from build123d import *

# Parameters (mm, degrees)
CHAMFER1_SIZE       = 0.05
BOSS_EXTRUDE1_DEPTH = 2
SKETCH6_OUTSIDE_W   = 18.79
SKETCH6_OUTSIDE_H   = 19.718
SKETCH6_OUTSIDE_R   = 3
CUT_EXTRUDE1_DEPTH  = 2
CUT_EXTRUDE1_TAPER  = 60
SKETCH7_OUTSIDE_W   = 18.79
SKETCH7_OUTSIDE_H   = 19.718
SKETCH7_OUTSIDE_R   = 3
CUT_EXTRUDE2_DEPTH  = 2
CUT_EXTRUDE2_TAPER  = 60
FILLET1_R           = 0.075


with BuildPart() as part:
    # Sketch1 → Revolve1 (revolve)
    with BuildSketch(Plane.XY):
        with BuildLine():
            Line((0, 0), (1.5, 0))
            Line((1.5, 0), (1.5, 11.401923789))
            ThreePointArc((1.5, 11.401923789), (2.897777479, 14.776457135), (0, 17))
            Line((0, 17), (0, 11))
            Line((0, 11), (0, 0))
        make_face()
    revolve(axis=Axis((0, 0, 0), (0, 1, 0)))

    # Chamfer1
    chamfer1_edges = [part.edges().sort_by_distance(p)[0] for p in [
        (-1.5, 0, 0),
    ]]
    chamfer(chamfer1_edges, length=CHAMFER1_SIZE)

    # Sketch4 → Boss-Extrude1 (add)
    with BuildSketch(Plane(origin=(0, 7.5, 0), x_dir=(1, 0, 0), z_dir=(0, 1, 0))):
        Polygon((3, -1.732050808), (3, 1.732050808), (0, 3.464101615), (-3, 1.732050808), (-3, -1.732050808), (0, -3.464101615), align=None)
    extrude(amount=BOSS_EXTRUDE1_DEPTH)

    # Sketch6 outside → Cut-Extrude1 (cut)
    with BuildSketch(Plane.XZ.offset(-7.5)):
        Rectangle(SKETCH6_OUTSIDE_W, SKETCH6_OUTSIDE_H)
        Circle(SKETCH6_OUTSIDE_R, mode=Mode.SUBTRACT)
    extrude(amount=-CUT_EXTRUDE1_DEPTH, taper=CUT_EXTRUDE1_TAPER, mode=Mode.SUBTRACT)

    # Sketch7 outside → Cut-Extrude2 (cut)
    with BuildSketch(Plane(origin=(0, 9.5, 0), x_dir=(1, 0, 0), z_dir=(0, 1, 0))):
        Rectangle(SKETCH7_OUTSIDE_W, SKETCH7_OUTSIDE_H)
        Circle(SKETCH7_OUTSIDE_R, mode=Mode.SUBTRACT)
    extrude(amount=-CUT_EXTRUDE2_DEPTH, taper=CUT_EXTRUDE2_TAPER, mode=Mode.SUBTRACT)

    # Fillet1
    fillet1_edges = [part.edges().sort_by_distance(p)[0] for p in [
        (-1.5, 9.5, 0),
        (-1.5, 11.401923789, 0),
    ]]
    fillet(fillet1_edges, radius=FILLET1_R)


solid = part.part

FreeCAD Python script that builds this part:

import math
import FreeCAD as App
import Part
import Sketcher
Q = App.Units.Quantity


def edges_at(feature, points):
    """Names of the edges that pass closest to the given points."""
    edges = feature.Shape.Edges
    near = lambda p: min(range(len(edges)), key=lambda i: edges[i].distToShape(Part.Vertex(*p))[0])
    return sorted({f"Edge{near(p) + 1}" for p in points})

doc = App.newDocument("Part")
params = doc.addObject("Spreadsheet::Sheet", "Params")
for row, (alias, value) in enumerate([
    ("sketch1_radius", "3 mm"),
    ("sketch1_height", "17 mm"),
    ("sketch1_width", "1.5 mm"),
    ("revolution_angle", "360 deg"),
    ("chamfer_size", "0.05 mm"),
    ("pad1_length", "2 mm"),
    ("sketch3_diameter", "6 mm"),
    ("sketch3_width", "18.79 mm"),
    ("pocket1_length", "2 mm"),
    ("pocket1_taper", "60 deg"),
    ("sketch4_diameter", "6 mm"),
    ("sketch4_width", "18.79 mm"),
    ("pocket2_length", "2 mm"),
    ("pocket2_taper", "60 deg"),
    ("fillet_radius", "0.075 mm"),
], start=1):
    params.set(f"A{row}", alias)
    params.set(f"B{row}", "=" + value)
    params.setAlias(f"B{row}", alias)

body = doc.addObject("PartDesign::Body", "Body")

# Sketch on XY plane
sketch1 = body.newObject("Sketcher::SketchObject", "Sketch")
sketch1.AttachmentSupport = (doc.getObject("XY_Plane"), [""])
sketch1.MapMode = "FlatFace"
sketch1.addGeometry(Part.LineSegment(App.Vector(0, 0, 0), App.Vector(1.5, 0, 0)), False)
sketch1.addGeometry(Part.LineSegment(App.Vector(1.5, 0, 0), App.Vector(1.5, 11.401924, 0)), False)
sketch1.addGeometry(Part.ArcOfCircle(Part.Circle(App.Vector(0, 14, 0), App.Vector(0, 0, 1), 3), math.radians(-60), math.radians(90)), False)
sketch1.addGeometry(Part.LineSegment(App.Vector(0, 17, 0), App.Vector(0, 0, 0)), False)
sketch1.addConstraint(Sketcher.Constraint("Coincident", 0, 2, 1, 1))
sketch1.addConstraint(Sketcher.Constraint("Coincident", 1, 2, 2, 1))
sketch1.addConstraint(Sketcher.Constraint("Coincident", 2, 2, 3, 1))
sketch1.addConstraint(Sketcher.Constraint("Coincident", 3, 2, 0, 1))
sketch1.addConstraint(Sketcher.Constraint("Horizontal", 0))
sketch1.addConstraint(Sketcher.Constraint("Vertical", 1))
sketch1.addConstraint(Sketcher.Constraint("Vertical", 3))
sketch1.addConstraint(Sketcher.Constraint("Coincident", 3, 2, -1, 1))
sketch1.addConstraint(Sketcher.Constraint("PointOnObject", 2, 3, -2))
sketch1.addConstraint(Sketcher.Constraint("Radius", 2, Q("3 mm")))
sketch1.addConstraint(Sketcher.Constraint("DistanceY", 3, 2, 3, 1, Q("17 mm")))
sketch1.addConstraint(Sketcher.Constraint("DistanceX", 0, 1, 0, 2, Q("1.5 mm")))
sketch1.setExpression("Constraints[9]", "Params.sketch1_radius")
sketch1.setExpression("Constraints[10]", "Params.sketch1_height")
sketch1.setExpression("Constraints[11]", "Params.sketch1_width")
revolution = body.newObject("PartDesign::Revolution", "Revolution")
revolution.Profile = sketch1
revolution.ReferenceAxis = (sketch1, ["V_Axis"])
revolution.setExpression("Angle", "Params.revolution_angle")
doc.recompute()

chamfer = body.newObject("PartDesign::Chamfer", "Chamfer")
chamfer.Base = (revolution, edges_at(revolution, [(-1.5, 0, 0)]))
chamfer.setExpression("Size", "Params.chamfer_size")

# Sketch on XZ plane
sketch2 = body.newObject("Sketcher::SketchObject", "Sketch001")
sketch2.AttachmentSupport = (doc.getObject("XZ_Plane"), [""])
sketch2.MapMode = "FlatFace"
sketch2.AttachmentOffset = App.Placement(App.Vector(0, 0, -7.5), App.Rotation())
sketch2.addGeometry(Part.LineSegment(App.Vector(3, 1.732051, 0), App.Vector(3, -1.732051, 0)), False)
sketch2.addGeometry(Part.LineSegment(App.Vector(3, -1.732051, 0), App.Vector(0, -3.464102, 0)), False)
sketch2.addGeometry(Part.LineSegment(App.Vector(0, -3.464102, 0), App.Vector(-3, -1.732051, 0)), False)
sketch2.addGeometry(Part.LineSegment(App.Vector(-3, -1.732051, 0), App.Vector(-3, 1.732051, 0)), False)
sketch2.addGeometry(Part.LineSegment(App.Vector(-3, 1.732051, 0), App.Vector(0, 3.464102, 0)), False)
sketch2.addGeometry(Part.LineSegment(App.Vector(0, 3.464102, 0), App.Vector(3, 1.732051, 0)), False)
sketch2.addConstraint(Sketcher.Constraint("Coincident", 0, 2, 1, 1))
sketch2.addConstraint(Sketcher.Constraint("Coincident", 1, 2, 2, 1))
sketch2.addConstraint(Sketcher.Constraint("Coincident", 2, 2, 3, 1))
sketch2.addConstraint(Sketcher.Constraint("Coincident", 3, 2, 4, 1))
sketch2.addConstraint(Sketcher.Constraint("Coincident", 4, 2, 5, 1))
sketch2.addConstraint(Sketcher.Constraint("Coincident", 5, 2, 0, 1))
sketch2.addConstraint(Sketcher.Constraint("Vertical", 0))
sketch2.addConstraint(Sketcher.Constraint("Vertical", 3))
sketch2.addConstraint(Sketcher.Constraint("Symmetric", 0, 2, 3, 2, -1, 1))
sketch2.addConstraint(Sketcher.Constraint("Symmetric", 1, 2, 4, 2, -1, 1))
sketch2.addConstraint(Sketcher.Constraint("PointOnObject", 1, 2, -2))
sketch2.addConstraint(Sketcher.Constraint("Parallel", 2, 5))
sketch2.addConstraint(Sketcher.Constraint("Horizontal", 0, 2, 2, 2))
sketch2.addConstraint(Sketcher.Constraint("Angle", 1, Q("-150 deg")))
sketch2.addConstraint(Sketcher.Constraint("DistanceX", -1, 1, 0, 2, Q("3 mm")))
sketch2.addConstraint(Sketcher.Constraint("DistanceY", 0, 2, 0, 1, Q("3.464102 mm")))
pad1 = body.newObject("PartDesign::Pad", "Pad")
pad1.Profile = sketch2
pad1.setExpression("Length", "Params.pad1_length")
pad1.Reversed = True

# Sketch on XZ plane
sketch3 = body.newObject("Sketcher::SketchObject", "Sketch002")
sketch3.AttachmentSupport = (doc.getObject("XZ_Plane"), [""])
sketch3.MapMode = "FlatFace"
sketch3.AttachmentOffset = App.Placement(App.Vector(0, 0, -7.5), App.Rotation())
sketch3.addGeometry(Part.LineSegment(App.Vector(-9.395, 9.859, 0), App.Vector(-9.395, -9.859, 0)), False)
sketch3.addGeometry(Part.LineSegment(App.Vector(-9.395, -9.859, 0), App.Vector(9.395, -9.859, 0)), False)
sketch3.addGeometry(Part.LineSegment(App.Vector(9.395, -9.859, 0), App.Vector(9.395, 9.859, 0)), False)
sketch3.addGeometry(Part.LineSegment(App.Vector(9.395, 9.859, 0), App.Vector(-9.395, 9.859, 0)), False)
sketch3.addGeometry(Part.Circle(App.Vector(0, 0, 0), App.Vector(0, 0, 1), 3), False)
sketch3.addConstraint(Sketcher.Constraint("Coincident", 0, 2, 1, 1))
sketch3.addConstraint(Sketcher.Constraint("Coincident", 1, 2, 2, 1))
sketch3.addConstraint(Sketcher.Constraint("Coincident", 2, 2, 3, 1))
sketch3.addConstraint(Sketcher.Constraint("Coincident", 3, 2, 0, 1))
sketch3.addConstraint(Sketcher.Constraint("Vertical", 0))
sketch3.addConstraint(Sketcher.Constraint("Horizontal", 1))
sketch3.addConstraint(Sketcher.Constraint("Vertical", 2))
sketch3.addConstraint(Sketcher.Constraint("Horizontal", 3))
sketch3.addConstraint(Sketcher.Constraint("Coincident", 4, 3, -1, 1))
sketch3.addConstraint(Sketcher.Constraint("Symmetric", 0, 2, 2, 2, -1, 1))
sketch3.addConstraint(Sketcher.Constraint("Diameter", 4, Q("6 mm")))
sketch3.addConstraint(Sketcher.Constraint("DistanceX", 1, 1, 1, 2, Q("18.79 mm")))
sketch3.addConstraint(Sketcher.Constraint("DistanceY", 0, 2, 0, 1, Q("19.718 mm")))
sketch3.setExpression("Constraints[10]", "Params.sketch3_diameter")
sketch3.setExpression("Constraints[11]", "Params.sketch3_width")
pocket1 = body.newObject("PartDesign::Pocket", "Pocket")
pocket1.Profile = sketch3
pocket1.setExpression("Length", "Params.pocket1_length")
pocket1.setExpression("TaperAngle", "Params.pocket1_taper")

# Sketch on XZ plane
sketch4 = body.newObject("Sketcher::SketchObject", "Sketch003")
sketch4.AttachmentSupport = (doc.getObject("XZ_Plane"), [""])
sketch4.MapMode = "FlatFace"
sketch4.AttachmentOffset = App.Placement(App.Vector(0, 0, -9.5), App.Rotation())
sketch4.addGeometry(Part.LineSegment(App.Vector(-9.395, -9.859, 0), App.Vector(-9.395, 9.859, 0)), False)
sketch4.addGeometry(Part.LineSegment(App.Vector(-9.395, 9.859, 0), App.Vector(9.395, 9.859, 0)), False)
sketch4.addGeometry(Part.LineSegment(App.Vector(9.395, 9.859, 0), App.Vector(9.395, -9.859, 0)), False)
sketch4.addGeometry(Part.LineSegment(App.Vector(9.395, -9.859, 0), App.Vector(-9.395, -9.859, 0)), False)
sketch4.addGeometry(Part.Circle(App.Vector(0, 0, 0), App.Vector(0, 0, 1), 3), False)
sketch4.addConstraint(Sketcher.Constraint("Coincident", 0, 2, 1, 1))
sketch4.addConstraint(Sketcher.Constraint("Coincident", 1, 2, 2, 1))
sketch4.addConstraint(Sketcher.Constraint("Coincident", 2, 2, 3, 1))
sketch4.addConstraint(Sketcher.Constraint("Coincident", 3, 2, 0, 1))
sketch4.addConstraint(Sketcher.Constraint("Vertical", 0))
sketch4.addConstraint(Sketcher.Constraint("Horizontal", 1))
sketch4.addConstraint(Sketcher.Constraint("Vertical", 2))
sketch4.addConstraint(Sketcher.Constraint("Horizontal", 3))
sketch4.addConstraint(Sketcher.Constraint("Coincident", 4, 3, -1, 1))
sketch4.addConstraint(Sketcher.Constraint("Symmetric", 0, 2, 2, 2, -1, 1))
sketch4.addConstraint(Sketcher.Constraint("Diameter", 4, Q("6 mm")))
sketch4.addConstraint(Sketcher.Constraint("DistanceX", 1, 1, 1, 2, Q("18.79 mm")))
sketch4.addConstraint(Sketcher.Constraint("DistanceY", 0, 1, 0, 2, Q("19.718 mm")))
sketch4.setExpression("Constraints[10]", "Params.sketch4_diameter")
sketch4.setExpression("Constraints[11]", "Params.sketch4_width")
pocket2 = body.newObject("PartDesign::Pocket", "Pocket001")
pocket2.Profile = sketch4
pocket2.setExpression("Length", "Params.pocket2_length")
pocket2.Reversed = True
pocket2.setExpression("TaperAngle", "Params.pocket2_taper")
doc.recompute()

fillet = body.newObject("PartDesign::Fillet", "Fillet")
fillet.Base = (pocket2, edges_at(pocket2, [(-1.5, 9.5, 0), (-1.5, 11.402, 0)]))
fillet.setExpression("Radius", "Params.fillet_radius")

doc.recompute()
